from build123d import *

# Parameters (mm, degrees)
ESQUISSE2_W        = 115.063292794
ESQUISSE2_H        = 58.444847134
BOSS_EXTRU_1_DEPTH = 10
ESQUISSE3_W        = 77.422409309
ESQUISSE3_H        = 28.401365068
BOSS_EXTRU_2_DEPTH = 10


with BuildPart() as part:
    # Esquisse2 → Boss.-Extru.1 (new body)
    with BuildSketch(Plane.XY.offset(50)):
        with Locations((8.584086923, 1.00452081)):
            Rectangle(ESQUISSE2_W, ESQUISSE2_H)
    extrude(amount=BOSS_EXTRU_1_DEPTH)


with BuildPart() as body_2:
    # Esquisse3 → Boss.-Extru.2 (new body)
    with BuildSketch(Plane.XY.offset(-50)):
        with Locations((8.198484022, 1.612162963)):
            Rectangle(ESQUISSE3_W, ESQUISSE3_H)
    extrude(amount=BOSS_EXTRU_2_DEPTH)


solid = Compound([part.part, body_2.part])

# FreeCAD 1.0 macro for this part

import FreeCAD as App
import Part
import Sketcher
from FreeCAD import Vector
Q = App.Units.Quantity

doc = App.newDocument("Part")
params = doc.addObject("Spreadsheet::Sheet", "Params")
for row, (alias, value) in enumerate([
    ("pad1_length", "10 mm"),
    ("pad2_length", "10 mm"),
], start=1):
    params.set(f"A{row}", alias)
    params.set(f"B{row}", "=" + value)
    params.setAlias(f"B{row}", alias)

body = doc.addObject("PartDesign::Body", "Body")

sketch1 = body.newObject("Sketcher::SketchObject", "Sketch")
sketch1.AttachmentSupport = (doc.getObject("XY_Plane"), [""])
sketch1.MapMode = "FlatFace"
sketch1.AttachmentOffset = App.Placement(Vector(0, 0, 50), App.Rotation())
sketch1.addGeometry([
    Part.LineSegment(Vector(-49, 30, 0), Vector(-49, -28, 0)),
    Part.LineSegment(Vector(-49, -28, 0), Vector(66, -28, 0)),
    Part.LineSegment(Vector(66, -28, 0), Vector(66, 30, 0)),
    Part.LineSegment(Vector(66, 30, 0), Vector(-49, 30, 0)),
], False)
sketch1.addConstraint([
    Sketcher.Constraint("Coincident", 0, 2, 1, 1),
    Sketcher.Constraint("Coincident", 1, 2, 2, 1),
    Sketcher.Constraint("Coincident", 2, 2, 3, 1),
    Sketcher.Constraint("Coincident", 3, 2, 0, 1),
    Sketcher.Constraint("Vertical", 0),
    Sketcher.Constraint("Horizontal", 1),
    Sketcher.Constraint("Vertical", 2),
    Sketcher.Constraint("Horizontal", 3),
    Sketcher.Constraint("DistanceX", 1, 1, 1, 2, Q("115.063293 mm")),
    Sketcher.Constraint("DistanceY", 0, 2, 0, 1, Q("58.444847 mm")),
    Sketcher.Constraint("DistanceX", 0, 2, -1, 1, Q("48.947559 mm")),
    Sketcher.Constraint("DistanceY", 0, 2, -1, 1, Q("28.217903 mm")),
])
pad1 = body.newObject("PartDesign::Pad", "Pad")
pad1.Profile = sketch1
pad1.setExpression("Length", "Params.pad1_length")
body2 = doc.addObject("PartDesign::Body", "Body001")

sketch2 = body2.newObject("Sketcher::SketchObject", "Sketch001")
sketch2.AttachmentSupport = (doc.getObject("XY_Plane001"), [""])
sketch2.MapMode = "FlatFace"
sketch2.AttachmentOffset = App.Placement(Vector(0, 0, -50), App.Rotation())
sketch2.addGeometry([
    Part.LineSegment(Vector(-31, 16, 0), Vector(-31, -13, 0)),
    Part.LineSegment(Vector(-31, -13, 0), Vector(47, -13, 0)),
    Part.LineSegment(Vector(47, -13, 0), Vector(47, 16, 0)),
    Part.LineSegment(Vector(47, 16, 0), Vector(-31, 16, 0)),
], False)
sketch2.addConstraint([
    Sketcher.Constraint("Coincident", 0, 2, 1, 1),
    Sketcher.Constraint("Coincident", 1, 2, 2, 1),
    Sketcher.Constraint("Coincident", 2, 2, 3, 1),
    Sketcher.Constraint("Coincident", 3, 2, 0, 1),
    Sketcher.Constraint("Vertical", 0),
    Sketcher.Constraint("Horizontal", 1),
    Sketcher.Constraint("Vertical", 2),
    Sketcher.Constraint("Horizontal", 3),
    Sketcher.Constraint("DistanceX", 1, 1, 1, 2, Q("77.422409 mm")),
    Sketcher.Constraint("DistanceY", 0, 2, 0, 1, Q("28.401365 mm")),
    Sketcher.Constraint("DistanceX", 0, 2, -1, 1, Q("30.512721 mm")),
    Sketcher.Constraint("DistanceY", 0, 2, -1, 1, Q("12.58852 mm")),
])
pad2 = body2.newObject("PartDesign::Pad", "Pad001")
pad2.Profile = sketch2
pad2.setExpression("Length", "Params.pad2_length")

doc.recompute()
